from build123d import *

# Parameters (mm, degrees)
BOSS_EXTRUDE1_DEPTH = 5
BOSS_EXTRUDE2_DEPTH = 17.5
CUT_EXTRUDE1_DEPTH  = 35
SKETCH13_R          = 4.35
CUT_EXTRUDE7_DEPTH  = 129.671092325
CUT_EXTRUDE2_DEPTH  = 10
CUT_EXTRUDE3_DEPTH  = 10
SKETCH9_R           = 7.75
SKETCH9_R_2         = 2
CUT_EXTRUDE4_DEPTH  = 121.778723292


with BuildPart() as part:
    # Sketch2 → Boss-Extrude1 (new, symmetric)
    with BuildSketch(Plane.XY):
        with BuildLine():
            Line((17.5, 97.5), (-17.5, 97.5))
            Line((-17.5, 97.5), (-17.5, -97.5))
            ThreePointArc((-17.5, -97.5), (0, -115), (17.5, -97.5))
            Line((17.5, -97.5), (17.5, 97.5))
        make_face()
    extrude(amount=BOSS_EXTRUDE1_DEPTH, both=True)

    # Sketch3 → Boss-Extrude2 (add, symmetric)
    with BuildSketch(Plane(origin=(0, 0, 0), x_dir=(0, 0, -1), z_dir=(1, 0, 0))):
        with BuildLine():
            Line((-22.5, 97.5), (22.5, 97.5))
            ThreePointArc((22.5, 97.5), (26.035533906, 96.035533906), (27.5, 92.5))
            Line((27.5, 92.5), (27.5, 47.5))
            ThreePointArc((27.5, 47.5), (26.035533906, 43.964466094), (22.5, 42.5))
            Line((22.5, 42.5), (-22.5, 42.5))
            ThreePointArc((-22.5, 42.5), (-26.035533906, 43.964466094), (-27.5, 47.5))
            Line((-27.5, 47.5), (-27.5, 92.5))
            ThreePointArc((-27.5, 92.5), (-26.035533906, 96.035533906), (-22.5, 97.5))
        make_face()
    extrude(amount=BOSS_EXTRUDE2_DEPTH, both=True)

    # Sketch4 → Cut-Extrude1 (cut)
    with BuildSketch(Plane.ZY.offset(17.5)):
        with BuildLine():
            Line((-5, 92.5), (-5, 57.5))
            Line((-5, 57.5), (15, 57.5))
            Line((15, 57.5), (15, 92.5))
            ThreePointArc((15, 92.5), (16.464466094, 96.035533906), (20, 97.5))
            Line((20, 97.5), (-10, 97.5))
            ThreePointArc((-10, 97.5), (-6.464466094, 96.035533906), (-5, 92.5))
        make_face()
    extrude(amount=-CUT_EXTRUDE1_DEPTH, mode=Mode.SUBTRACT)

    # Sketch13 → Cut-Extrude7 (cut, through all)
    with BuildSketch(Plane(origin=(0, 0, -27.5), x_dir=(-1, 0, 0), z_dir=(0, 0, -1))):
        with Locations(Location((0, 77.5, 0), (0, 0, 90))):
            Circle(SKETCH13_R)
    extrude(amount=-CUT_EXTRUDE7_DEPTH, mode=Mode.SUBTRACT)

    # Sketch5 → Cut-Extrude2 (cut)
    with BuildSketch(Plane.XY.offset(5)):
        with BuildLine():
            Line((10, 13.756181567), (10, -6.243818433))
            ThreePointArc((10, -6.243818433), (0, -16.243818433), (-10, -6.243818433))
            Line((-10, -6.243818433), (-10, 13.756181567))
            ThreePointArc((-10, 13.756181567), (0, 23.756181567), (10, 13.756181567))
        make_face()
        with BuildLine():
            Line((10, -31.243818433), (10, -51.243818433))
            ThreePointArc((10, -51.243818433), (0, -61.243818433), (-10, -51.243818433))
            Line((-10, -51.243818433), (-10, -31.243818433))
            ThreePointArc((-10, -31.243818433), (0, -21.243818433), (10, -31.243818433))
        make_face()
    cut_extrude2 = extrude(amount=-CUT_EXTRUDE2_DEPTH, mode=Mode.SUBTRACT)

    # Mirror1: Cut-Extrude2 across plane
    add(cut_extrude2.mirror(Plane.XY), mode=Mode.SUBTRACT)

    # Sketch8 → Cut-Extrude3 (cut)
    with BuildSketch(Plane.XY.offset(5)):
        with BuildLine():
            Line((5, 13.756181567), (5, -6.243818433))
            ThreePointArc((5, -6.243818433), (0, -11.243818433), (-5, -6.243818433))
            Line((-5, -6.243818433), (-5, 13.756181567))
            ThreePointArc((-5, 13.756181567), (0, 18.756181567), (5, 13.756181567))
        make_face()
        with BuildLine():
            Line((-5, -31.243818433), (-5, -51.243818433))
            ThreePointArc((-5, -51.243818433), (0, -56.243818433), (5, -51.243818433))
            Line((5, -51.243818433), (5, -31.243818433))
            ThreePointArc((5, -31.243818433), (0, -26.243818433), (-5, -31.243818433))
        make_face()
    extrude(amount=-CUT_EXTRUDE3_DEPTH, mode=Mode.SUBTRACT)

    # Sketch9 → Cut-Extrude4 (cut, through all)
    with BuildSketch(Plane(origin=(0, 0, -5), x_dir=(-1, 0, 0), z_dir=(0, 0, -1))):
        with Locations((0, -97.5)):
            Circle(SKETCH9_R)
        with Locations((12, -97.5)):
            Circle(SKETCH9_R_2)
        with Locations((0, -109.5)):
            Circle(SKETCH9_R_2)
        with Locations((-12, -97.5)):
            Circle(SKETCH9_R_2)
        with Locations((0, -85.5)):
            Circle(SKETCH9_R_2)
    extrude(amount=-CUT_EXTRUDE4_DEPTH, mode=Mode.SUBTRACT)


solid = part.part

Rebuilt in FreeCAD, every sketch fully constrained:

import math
import FreeCAD as App
import Part
import Sketcher
Q = App.Units.Quantity

doc = App.newDocument("Part")
body = doc.addObject("PartDesign::Body", "Body")

# Sketch on XY plane
sketch1 = body.newObject("Sketcher::SketchObject", "Sketch")
sketch1.AttachmentSupport = (doc.getObject("XY_Plane"), [""])
sketch1.MapMode = "FlatFace"
sketch1.addGeometry(Part.LineSegment(App.Vector(18, 98, 0), App.Vector(-18, 98, 0)), False)
sketch1.addGeometry(Part.LineSegment(App.Vector(-18, 98, 0), App.Vector(-18, -98, 0)), False)
sketch1.addGeometry(Part.ArcOfCircle(Part.Circle(App.Vector(0, -98, 0), App.Vector(0, 0, 1), 18), math.radians(180), math.radians(360)), False)
sketch1.addGeometry(Part.LineSegment(App.Vector(18, -98, 0), App.Vector(18, 98, 0)), False)
sketch1.addConstraint(Sketcher.Constraint("Coincident", 0, 2, 1, 1))
sketch1.addConstraint(Sketcher.Constraint("Tangent", 1, 2, 2, 1))
sketch1.addConstraint(Sketcher.Constraint("Tangent", 2, 2, 3, 1))
sketch1.addConstraint(Sketcher.Constraint("Coincident", 3, 2, 0, 1))
sketch1.addConstraint(Sketcher.Constraint("Horizontal", 0))
sketch1.addConstraint(Sketcher.Constraint("Vertical", 1))
sketch1.addConstraint(Sketcher.Constraint("Vertical", 3))
sketch1.addConstraint(Sketcher.Constraint("Symmetric", 0, 2, 2, 2, -1, 1))
sketch1.addConstraint(Sketcher.Constraint("Radius", 2, Q("17.5 mm")))
sketch1.addConstraint(Sketcher.Constraint("DistanceY", 1, 2, 1, 1, Q("195 mm")))
pad1 = body.newObject("PartDesign::Pad", "Pad")
pad1.Profile = sketch1
pad1.Length = 10
pad1.Midplane = True

# Sketch on YZ plane
sketch2 = body.newObject("Sketcher::SketchObject", "Sketch001")
sketch2.AttachmentSupport = (doc.getObject("YZ_Plane"), [""])
sketch2.MapMode = "FlatFace"
sketch2.addGeometry(Part.LineSegment(App.Vector(98, -22, 0), App.Vector(98, 22, 0)), False)
sketch2.addGeometry(Part.ArcOfCircle(Part.Circle(App.Vector(92, 22, 0), App.Vector(0, 0, 1), 5), math.radians(0), math.radians(90)), False)
sketch2.addGeometry(Part.LineSegment(App.Vector(92, 28, 0), App.Vector(48, 28, 0)), False)
sketch2.addGeometry(Part.ArcOfCircle(Part.Circle(App.Vector(48, 22, 0), App.Vector(0, 0, 1), 5), math.radians(90), math.radians(180)), False)
sketch2.addGeometry(Part.LineSegment(App.Vector(42, 22, 0), App.Vector(42, -22, 0)), False)
sketch2.addGeometry(Part.ArcOfCircle(Part.Circle(App.Vector(48, -22, 0), App.Vector(0, 0, 1), 5), math.radians(180), math.radians(270)), False)
sketch2.addGeometry(Part.LineSegment(App.Vector(48, -28, 0), App.Vector(92, -28, 0)), False)
sketch2.addGeometry(Part.ArcOfCircle(Part.Circle(App.Vector(92, -22, 0), App.Vector(0, 0, 1), 5), math.radians(-90), math.radians(0)), False)
sketch2.addConstraint(Sketcher.Constraint("Tangent", 0, 2, 1, 1))
sketch2.addConstraint(Sketcher.Constraint("Tangent", 1, 2, 2, 1))
sketch2.addConstraint(Sketcher.Constraint("Tangent", 2, 2, 3, 1))
sketch2.addConstraint(Sketcher.Constraint("Tangent", 3, 2, 4, 1))
sketch2.addConstraint(Sketcher.Constraint("Tangent", 4, 2, 5, 1))
sketch2.addConstraint(Sketcher.Constraint("Tangent", 5, 2, 6, 1))
sketch2.addConstraint(Sketcher.Constraint("Tangent", 6, 2, 7, 1))
sketch2.addConstraint(Sketcher.Constraint("Tangent", 7, 2, 0, 1))
sketch2.addConstraint(Sketcher.Constraint("Vertical", 0))
sketch2.addConstraint(Sketcher.Constraint("Horizontal", 2))
sketch2.addConstraint(Sketcher.Constraint("Vertical", 4))
sketch2.addConstraint(Sketcher.Constraint("Horizontal", 6))
sketch2.addConstraint(Sketcher.Constraint("Equal", 1, 3))
sketch2.addConstraint(Sketcher.Constraint("Equal", 3, 5))
sketch2.addConstraint(Sketcher.Constraint("Equal", 5, 7))
sketch2.addConstraint(Sketcher.Constraint("Equal", 6, 0))
sketch2.addConstraint(Sketcher.Constraint("Radius", 1, Q("5 mm")))
sketch2.addConstraint(Sketcher.Constraint("DistanceX", 2, 2, 2, 1, Q("45 mm")))
sketch2.addConstraint(Sketcher.Constraint("DistanceX", -1, 1, 1, 3, Q("92.5 mm")))
sketch2.addConstraint(Sketcher.Constraint("DistanceY", -1, 1, 1, 3, Q("22.5 mm")))
pad2 = body.newObject("PartDesign::Pad", "Pad001")
pad2.Profile = sketch2
pad2.Length = 35
pad2.Midplane = True

# Sketch on YZ plane
sketch3 = body.newObject("Sketcher::SketchObject", "Sketch002")
sketch3.AttachmentSupport = (doc.getObject("YZ_Plane"), [""])
sketch3.MapMode = "FlatFace"
sketch3.AttachmentOffset = App.Placement(App.Vector(0, 0, -17.5), App.Rotation())
sketch3.addGeometry(Part.LineSegment(App.Vector(92, -5, 0), App.Vector(58, -5, 0)), False)
sketch3.addGeometry(Part.LineSegment(App.Vector(58, -5, 0), App.Vector(58, 15, 0)), False)
sketch3.addGeometry(Part.LineSegment(App.Vector(58, 15, 0), App.Vector(92, 15, 0)), False)
sketch3.addGeometry(Part.ArcOfCircle(Part.Circle(App.Vector(92, 20, 0), App.Vector(0, 0, 1), 5), math.radians(-90), math.radians(0)), False)
sketch3.addGeometry(Part.LineSegment(App.Vector(98, 20, 0), App.Vector(98, -10, 0)), False)
sketch3.addGeometry(Part.ArcOfCircle(Part.Circle(App.Vector(92, -10, 0), App.Vector(0, 0, 1), 5), math.radians(0), math.radians(90)), False)
sketch3.addConstraint(Sketcher.Constraint("Coincident", 0, 2, 1, 1))
sketch3.addConstraint(Sketcher.Constraint("Coincident", 1, 2, 2, 1))
sketch3.addConstraint(Sketcher.Constraint("Tangent", 2, 2, 3, 1))
sketch3.addConstraint(Sketcher.Constraint("Tangent", 3, 2, 4, 1))
sketch3.addConstraint(Sketcher.Constraint("Tangent", 4, 2, 5, 1))
sketch3.addConstraint(Sketcher.Constraint("Tangent", 5, 2, 0, 1))
sketch3.addConstraint(Sketcher.Constraint("Horizontal", 0))
sketch3.addConstraint(Sketcher.Constraint("Vertical", 1))
sketch3.addConstraint(Sketcher.Constraint("Horizontal", 2))
sketch3.addConstraint(Sketcher.Constraint("Vertical", 4))
sketch3.addConstraint(Sketcher.Constraint("Equal", 3, 5))
sketch3.addConstraint(Sketcher.Constraint("Radius", 3, Q("5 mm")))
sketch3.addConstraint(Sketcher.Constraint("DistanceX", 0, 2, 0, 1, Q("35 mm")))
sketch3.addConstraint(Sketcher.Constraint("DistanceY", 1, 1, 1, 2, Q("20 mm")))
sketch3.addConstraint(Sketcher.Constraint("DistanceY", -1, 1, 3, 3, Q("20 mm")))
sketch3.addConstraint(Sketcher.Constraint("DistanceX", -1, 1, 3, 3, Q("92.5 mm")))
pocket1 = body.newObject("PartDesign::Pocket", "Pocket")
pocket1.Profile = sketch3
pocket1.Length = 35
pocket1.Reversed = True

# Sketch on XY plane
sketch4 = body.newObject("Sketcher::SketchObject", "Sketch003")
sketch4.AttachmentSupport = (doc.getObject("XY_Plane"), [""])
sketch4.MapMode = "FlatFace"
sketch4.AttachmentOffset = App.Placement(App.Vector(0, 0, -27.5), App.Rotation())
sketch4.addGeometry(Part.Circle(App.Vector(0, 77.5, 0), App.Vector(0, 0, 1), 4.3), False)
sketch4.addConstraint(Sketcher.Constraint("PointOnObject", 0, 3, -2))
sketch4.addConstraint(Sketcher.Constraint("Diameter", 0, Q("8.7 mm")))
sketch4.addConstraint(Sketcher.Constraint("DistanceY", -1, 1, 0, 3, Q("77.5 mm")))
pocket2 = body.newObject("PartDesign::Pocket", "Pocket001")
pocket2.Profile = sketch4
pocket2.Type = "ThroughAll"
pocket2.Reversed = True

# Sketch on XY plane
sketch5 = body.newObject("Sketcher::SketchObject", "Sketch004")
sketch5.AttachmentSupport = (doc.getObject("XY_Plane"), [""])
sketch5.MapMode = "FlatFace"
sketch5.AttachmentOffset = App.Placement(App.Vector(0, 0, 5), App.Rotation())
sketch5.addGeometry(Part.LineSegment(App.Vector(10, -6, 0), App.Vector(10, 14, 0)), False)
sketch5.addGeometry(Part.ArcOfCircle(Part.Circle(App.Vector(0, 14, 0), App.Vector(0, 0, 1), 10), math.radians(0), math.radians(180)), False)
sketch5.addGeometry(Part.LineSegment(App.Vector(-10, 14, 0), App.Vector(-10, -6, 0)), False)
sketch5.addGeometry(Part.ArcOfCircle(Part.Circle(App.Vector(0, -6, 0), App.Vector(0, 0, 1), 10), math.radians(180), math.radians(360)), False)
sketch5.addGeometry(Part.LineSegment(App.Vector(10, -51, 0), App.Vector(10, -31, 0)), False)
sketch5.addGeometry(Part.ArcOfCircle(Part.Circle(App.Vector(0, -31, 0), App.Vector(0, 0, 1), 10), math.radians(0), math.radians(180)), False)
sketch5.addGeometry(Part.LineSegment(App.Vector(-10, -31, 0), App.Vector(-10, -51, 0)), False)
sketch5.addGeometry(Part.ArcOfCircle(Part.Circle(App.Vector(0, -51, 0), App.Vector(0, 0, 1), 10), math.radians(180), math.radians(360)), False)
sketch5.addConstraint(Sketcher.Constraint("Tangent", 0, 2, 1, 1))
sketch5.addConstraint(Sketcher.Constraint("Tangent", 1, 2, 2, 1))
sketch5.addConstraint(Sketcher.Constraint("Tangent", 2, 2, 3, 1))
sketch5.addConstraint(Sketcher.Constraint("Tangent", 3, 2, 0, 1))
sketch5.addConstraint(Sketcher.Constraint("Tangent", 4, 2, 5, 1))
sketch5.addConstraint(Sketcher.Constraint("Tangent", 5, 2, 6, 1))
sketch5.addConstraint(Sketcher.Constraint("Tangent", 6, 2, 7, 1))
sketch5.addConstraint(Sketcher.Constraint("Tangent", 7, 2, 4, 1))
sketch5.addConstraint(Sketcher.Constraint("Vertical", 0))
sketch5.addConstraint(Sketcher.Constraint("Vertical", 2))
sketch5.addConstraint(Sketcher.Constraint("Vertical", 4))
sketch5.addConstraint(Sketcher.Constraint("Vertical", 6))
sketch5.addConstraint(Sketcher.Constraint("Equal", 3, 5))
sketch5.addConstraint(Sketcher.Constraint("PointOnObject", 1, 3, -2))
sketch5.addConstraint(Sketcher.Constraint("PointOnObject", 5, 3, -2))
sketch5.addConstraint(Sketcher.Constraint("Equal", 2, 4))
sketch5.addConstraint(Sketcher.Constraint("Radius", 1, Q("10 mm")))
sketch5.addConstraint(Sketcher.Constraint("DistanceY", 0, 1, 0, 2, Q("20 mm")))
sketch5.addConstraint(Sketcher.Constraint("DistanceY", 5, 3, 3, 3, Q("25 mm")))
sketch5.addConstraint(Sketcher.Constraint("DistanceY", -1, 1, 1, 3, Q("13.756182 mm")))
pocket3 = body.newObject("PartDesign::Pocket", "Pocket002")
pocket3.Profile = sketch5
pocket3.Length = 10
doc.recompute()

mirrored = body.newObject("PartDesign::Mirrored", "Mirrored")
mirrored.Originals = [pocket3]
mirrored.MirrorPlane = (doc.getObject("XY_Plane"), [""])
body.Tip = mirrored

# Sketch on XY plane
sketch6 = body.newObject("Sketcher::SketchObject", "Sketch005")
sketch6.AttachmentSupport = (doc.getObject("XY_Plane"), [""])
sketch6.MapMode = "FlatFace"
sketch6.AttachmentOffset = App.Placement(App.Vector(0, 0, 5), App.Rotation())
sketch6.addGeometry(Part.LineSegment(App.Vector(5, -6, 0), App.Vector(5, 14, 0)), False)
sketch6.addGeometry(Part.ArcOfCircle(Part.Circle(App.Vector(0, 14, 0), App.Vector(0, 0, 1), 5), math.radians(0), math.radians(180)), False)
sketch6.addGeometry(Part.LineSegment(App.Vector(-5, 14, 0), App.Vector(-5, -6, 0)), False)
sketch6.addGeometry(Part.ArcOfCircle(Part.Circle(App.Vector(0, -6, 0), App.Vector(0, 0, 1), 5), math.radians(180), math.radians(360)), False)
sketch6.addGeometry(Part.LineSegment(App.Vector(-5, -31, 0), App.Vector(-5, -51, 0)), False)
sketch6.addGeometry(Part.ArcOfCircle(Part.Circle(App.Vector(0, -51, 0), App.Vector(0, 0, 1), 5), math.radians(180), math.radians(360)), False)
sketch6.addGeometry(Part.LineSegment(App.Vector(5, -51, 0), App.Vector(5, -31, 0)), False)
sketch6.addGeometry(Part.ArcOfCircle(Part.Circle(App.Vector(0, -31, 0), App.Vector(0, 0, 1), 5), math.radians(0), math.radians(180)), False)
sketch6.addConstraint(Sketcher.Constraint("Tangent", 0, 2, 1, 1))
sketch6.addConstraint(Sketcher.Constraint("Tangent", 1, 2, 2, 1))
sketch6.addConstraint(Sketcher.Constraint("Tangent", 2, 2, 3, 1))
sketch6.addConstraint(Sketcher.Constraint("Tangent", 3, 2, 0, 1))
sketch6.addConstraint(Sketcher.Constraint("Tangent", 4, 2, 5, 1))
sketch6.addConstraint(Sketcher.Constraint("Tangent", 5, 2, 6, 1))
sketch6.addConstraint(Sketcher.Constraint("Tangent", 6, 2, 7, 1))
sketch6.addConstraint(Sketcher.Constraint("Tangent", 7, 2, 4, 1))
sketch6.addConstraint(Sketcher.Constraint("Vertical", 0))
sketch6.addConstraint(Sketcher.Constraint("Vertical", 2))
sketch6.addConstraint(Sketcher.Constraint("Vertical", 4))
sketch6.addConstraint(Sketcher.Constraint("Vertical", 6))
sketch6.addConstraint(Sketcher.Constraint("Equal", 3, 5))
sketch6.addConstraint(Sketcher.Constraint("PointOnObject", 1, 3, -2))
sketch6.addConstraint(Sketcher.Constraint("PointOnObject", 5, 3, -2))
sketch6.addConstraint(Sketcher.Constraint("Equal", 2, 4))
sketch6.addConstraint(Sketcher.Constraint("Radius", 1, Q("5 mm")))
sketch6.addConstraint(Sketcher.Constraint("DistanceY", 0, 1, 0, 2, Q("20 mm")))
sketch6.addConstraint(Sketcher.Constraint("DistanceY", 5, 3, 3, 3, Q("45 mm")))
sketch6.addConstraint(Sketcher.Constraint("DistanceY", -1, 1, 1, 3, Q("13.756182 mm")))
pocket4 = body.newObject("PartDesign::Pocket", "Pocket003")
pocket4.Profile = sketch6
pocket4.Length = 10

# Sketch on XY plane
sketch7 = body.newObject("Sketcher::SketchObject", "Sketch006")
sketch7.AttachmentSupport = (doc.getObject("XY_Plane"), [""])
sketch7.MapMode = "FlatFace"
sketch7.AttachmentOffset = App.Placement(App.Vector(0, 0, -5), App.Rotation())
sketch7.addGeometry(Part.Circle(App.Vector(0, -97.5, 0), App.Vector(0, 0, 1), 7.8), False)
sketch7.addGeometry(Part.Circle(App.Vector(-12, -97.5, 0), App.Vector(0, 0, 1), 2), False)
sketch7.addGeometry(Part.Circle(App.Vector(0, -109.5, 0), App.Vector(0, 0, 1), 2), False)
sketch7.addGeometry(Part.Circle(App.Vector(12, -97.5, 0), App.Vector(0, 0, 1), 2), False)
sketch7.addGeometry(Part.Circle(App.Vector(0, -85.5, 0), App.Vector(0, 0, 1), 2), False)
sketch7.addConstraint(Sketcher.Constraint("Equal", 1, 2))
sketch7.addConstraint(Sketcher.Constraint("Equal", 2, 3))
sketch7.addConstraint(Sketcher.Constraint("Equal", 3, 4))
sketch7.addConstraint(Sketcher.Constraint("Symmetric", 1, 3, 3, 3, -2))
sketch7.addConstraint(Sketcher.Constraint("PointOnObject", 0, 3, -2))
sketch7.addConstraint(Sketcher.Constraint("PointOnObject", 2, 3, -2))
sketch7.addConstraint(Sketcher.Constraint("PointOnObject", 4, 3, -2))
sketch7.addConstraint(Sketcher.Constraint("Horizontal", 0, 3, 1, 3))
sketch7.addConstraint(Sketcher.Constraint("Diameter", 1, Q("4 mm")))
sketch7.addConstraint(Sketcher.Constraint("Diameter", 0, Q("15.5 mm")))
sketch7.addConstraint(Sketcher.Constraint("DistanceX", 1, 3, -1, 1, Q("12 mm")))
sketch7.addConstraint(Sketcher.Constraint("DistanceY", 2, 3, 0, 3, Q("12 mm")))
sketch7.addConstraint(Sketcher.Constraint("DistanceY", 0, 3, 4, 3, Q("12 mm")))
sketch7.addConstraint(Sketcher.Constraint("DistanceY", 0, 3, -1, 1, Q("97.5 mm")))
pocket5 = body.newObject("PartDesign::Pocket", "Pocket004")
pocket5.Profile = sketch7
pocket5.Type = "ThroughAll"
pocket5.Reversed = True

doc.recompute()
